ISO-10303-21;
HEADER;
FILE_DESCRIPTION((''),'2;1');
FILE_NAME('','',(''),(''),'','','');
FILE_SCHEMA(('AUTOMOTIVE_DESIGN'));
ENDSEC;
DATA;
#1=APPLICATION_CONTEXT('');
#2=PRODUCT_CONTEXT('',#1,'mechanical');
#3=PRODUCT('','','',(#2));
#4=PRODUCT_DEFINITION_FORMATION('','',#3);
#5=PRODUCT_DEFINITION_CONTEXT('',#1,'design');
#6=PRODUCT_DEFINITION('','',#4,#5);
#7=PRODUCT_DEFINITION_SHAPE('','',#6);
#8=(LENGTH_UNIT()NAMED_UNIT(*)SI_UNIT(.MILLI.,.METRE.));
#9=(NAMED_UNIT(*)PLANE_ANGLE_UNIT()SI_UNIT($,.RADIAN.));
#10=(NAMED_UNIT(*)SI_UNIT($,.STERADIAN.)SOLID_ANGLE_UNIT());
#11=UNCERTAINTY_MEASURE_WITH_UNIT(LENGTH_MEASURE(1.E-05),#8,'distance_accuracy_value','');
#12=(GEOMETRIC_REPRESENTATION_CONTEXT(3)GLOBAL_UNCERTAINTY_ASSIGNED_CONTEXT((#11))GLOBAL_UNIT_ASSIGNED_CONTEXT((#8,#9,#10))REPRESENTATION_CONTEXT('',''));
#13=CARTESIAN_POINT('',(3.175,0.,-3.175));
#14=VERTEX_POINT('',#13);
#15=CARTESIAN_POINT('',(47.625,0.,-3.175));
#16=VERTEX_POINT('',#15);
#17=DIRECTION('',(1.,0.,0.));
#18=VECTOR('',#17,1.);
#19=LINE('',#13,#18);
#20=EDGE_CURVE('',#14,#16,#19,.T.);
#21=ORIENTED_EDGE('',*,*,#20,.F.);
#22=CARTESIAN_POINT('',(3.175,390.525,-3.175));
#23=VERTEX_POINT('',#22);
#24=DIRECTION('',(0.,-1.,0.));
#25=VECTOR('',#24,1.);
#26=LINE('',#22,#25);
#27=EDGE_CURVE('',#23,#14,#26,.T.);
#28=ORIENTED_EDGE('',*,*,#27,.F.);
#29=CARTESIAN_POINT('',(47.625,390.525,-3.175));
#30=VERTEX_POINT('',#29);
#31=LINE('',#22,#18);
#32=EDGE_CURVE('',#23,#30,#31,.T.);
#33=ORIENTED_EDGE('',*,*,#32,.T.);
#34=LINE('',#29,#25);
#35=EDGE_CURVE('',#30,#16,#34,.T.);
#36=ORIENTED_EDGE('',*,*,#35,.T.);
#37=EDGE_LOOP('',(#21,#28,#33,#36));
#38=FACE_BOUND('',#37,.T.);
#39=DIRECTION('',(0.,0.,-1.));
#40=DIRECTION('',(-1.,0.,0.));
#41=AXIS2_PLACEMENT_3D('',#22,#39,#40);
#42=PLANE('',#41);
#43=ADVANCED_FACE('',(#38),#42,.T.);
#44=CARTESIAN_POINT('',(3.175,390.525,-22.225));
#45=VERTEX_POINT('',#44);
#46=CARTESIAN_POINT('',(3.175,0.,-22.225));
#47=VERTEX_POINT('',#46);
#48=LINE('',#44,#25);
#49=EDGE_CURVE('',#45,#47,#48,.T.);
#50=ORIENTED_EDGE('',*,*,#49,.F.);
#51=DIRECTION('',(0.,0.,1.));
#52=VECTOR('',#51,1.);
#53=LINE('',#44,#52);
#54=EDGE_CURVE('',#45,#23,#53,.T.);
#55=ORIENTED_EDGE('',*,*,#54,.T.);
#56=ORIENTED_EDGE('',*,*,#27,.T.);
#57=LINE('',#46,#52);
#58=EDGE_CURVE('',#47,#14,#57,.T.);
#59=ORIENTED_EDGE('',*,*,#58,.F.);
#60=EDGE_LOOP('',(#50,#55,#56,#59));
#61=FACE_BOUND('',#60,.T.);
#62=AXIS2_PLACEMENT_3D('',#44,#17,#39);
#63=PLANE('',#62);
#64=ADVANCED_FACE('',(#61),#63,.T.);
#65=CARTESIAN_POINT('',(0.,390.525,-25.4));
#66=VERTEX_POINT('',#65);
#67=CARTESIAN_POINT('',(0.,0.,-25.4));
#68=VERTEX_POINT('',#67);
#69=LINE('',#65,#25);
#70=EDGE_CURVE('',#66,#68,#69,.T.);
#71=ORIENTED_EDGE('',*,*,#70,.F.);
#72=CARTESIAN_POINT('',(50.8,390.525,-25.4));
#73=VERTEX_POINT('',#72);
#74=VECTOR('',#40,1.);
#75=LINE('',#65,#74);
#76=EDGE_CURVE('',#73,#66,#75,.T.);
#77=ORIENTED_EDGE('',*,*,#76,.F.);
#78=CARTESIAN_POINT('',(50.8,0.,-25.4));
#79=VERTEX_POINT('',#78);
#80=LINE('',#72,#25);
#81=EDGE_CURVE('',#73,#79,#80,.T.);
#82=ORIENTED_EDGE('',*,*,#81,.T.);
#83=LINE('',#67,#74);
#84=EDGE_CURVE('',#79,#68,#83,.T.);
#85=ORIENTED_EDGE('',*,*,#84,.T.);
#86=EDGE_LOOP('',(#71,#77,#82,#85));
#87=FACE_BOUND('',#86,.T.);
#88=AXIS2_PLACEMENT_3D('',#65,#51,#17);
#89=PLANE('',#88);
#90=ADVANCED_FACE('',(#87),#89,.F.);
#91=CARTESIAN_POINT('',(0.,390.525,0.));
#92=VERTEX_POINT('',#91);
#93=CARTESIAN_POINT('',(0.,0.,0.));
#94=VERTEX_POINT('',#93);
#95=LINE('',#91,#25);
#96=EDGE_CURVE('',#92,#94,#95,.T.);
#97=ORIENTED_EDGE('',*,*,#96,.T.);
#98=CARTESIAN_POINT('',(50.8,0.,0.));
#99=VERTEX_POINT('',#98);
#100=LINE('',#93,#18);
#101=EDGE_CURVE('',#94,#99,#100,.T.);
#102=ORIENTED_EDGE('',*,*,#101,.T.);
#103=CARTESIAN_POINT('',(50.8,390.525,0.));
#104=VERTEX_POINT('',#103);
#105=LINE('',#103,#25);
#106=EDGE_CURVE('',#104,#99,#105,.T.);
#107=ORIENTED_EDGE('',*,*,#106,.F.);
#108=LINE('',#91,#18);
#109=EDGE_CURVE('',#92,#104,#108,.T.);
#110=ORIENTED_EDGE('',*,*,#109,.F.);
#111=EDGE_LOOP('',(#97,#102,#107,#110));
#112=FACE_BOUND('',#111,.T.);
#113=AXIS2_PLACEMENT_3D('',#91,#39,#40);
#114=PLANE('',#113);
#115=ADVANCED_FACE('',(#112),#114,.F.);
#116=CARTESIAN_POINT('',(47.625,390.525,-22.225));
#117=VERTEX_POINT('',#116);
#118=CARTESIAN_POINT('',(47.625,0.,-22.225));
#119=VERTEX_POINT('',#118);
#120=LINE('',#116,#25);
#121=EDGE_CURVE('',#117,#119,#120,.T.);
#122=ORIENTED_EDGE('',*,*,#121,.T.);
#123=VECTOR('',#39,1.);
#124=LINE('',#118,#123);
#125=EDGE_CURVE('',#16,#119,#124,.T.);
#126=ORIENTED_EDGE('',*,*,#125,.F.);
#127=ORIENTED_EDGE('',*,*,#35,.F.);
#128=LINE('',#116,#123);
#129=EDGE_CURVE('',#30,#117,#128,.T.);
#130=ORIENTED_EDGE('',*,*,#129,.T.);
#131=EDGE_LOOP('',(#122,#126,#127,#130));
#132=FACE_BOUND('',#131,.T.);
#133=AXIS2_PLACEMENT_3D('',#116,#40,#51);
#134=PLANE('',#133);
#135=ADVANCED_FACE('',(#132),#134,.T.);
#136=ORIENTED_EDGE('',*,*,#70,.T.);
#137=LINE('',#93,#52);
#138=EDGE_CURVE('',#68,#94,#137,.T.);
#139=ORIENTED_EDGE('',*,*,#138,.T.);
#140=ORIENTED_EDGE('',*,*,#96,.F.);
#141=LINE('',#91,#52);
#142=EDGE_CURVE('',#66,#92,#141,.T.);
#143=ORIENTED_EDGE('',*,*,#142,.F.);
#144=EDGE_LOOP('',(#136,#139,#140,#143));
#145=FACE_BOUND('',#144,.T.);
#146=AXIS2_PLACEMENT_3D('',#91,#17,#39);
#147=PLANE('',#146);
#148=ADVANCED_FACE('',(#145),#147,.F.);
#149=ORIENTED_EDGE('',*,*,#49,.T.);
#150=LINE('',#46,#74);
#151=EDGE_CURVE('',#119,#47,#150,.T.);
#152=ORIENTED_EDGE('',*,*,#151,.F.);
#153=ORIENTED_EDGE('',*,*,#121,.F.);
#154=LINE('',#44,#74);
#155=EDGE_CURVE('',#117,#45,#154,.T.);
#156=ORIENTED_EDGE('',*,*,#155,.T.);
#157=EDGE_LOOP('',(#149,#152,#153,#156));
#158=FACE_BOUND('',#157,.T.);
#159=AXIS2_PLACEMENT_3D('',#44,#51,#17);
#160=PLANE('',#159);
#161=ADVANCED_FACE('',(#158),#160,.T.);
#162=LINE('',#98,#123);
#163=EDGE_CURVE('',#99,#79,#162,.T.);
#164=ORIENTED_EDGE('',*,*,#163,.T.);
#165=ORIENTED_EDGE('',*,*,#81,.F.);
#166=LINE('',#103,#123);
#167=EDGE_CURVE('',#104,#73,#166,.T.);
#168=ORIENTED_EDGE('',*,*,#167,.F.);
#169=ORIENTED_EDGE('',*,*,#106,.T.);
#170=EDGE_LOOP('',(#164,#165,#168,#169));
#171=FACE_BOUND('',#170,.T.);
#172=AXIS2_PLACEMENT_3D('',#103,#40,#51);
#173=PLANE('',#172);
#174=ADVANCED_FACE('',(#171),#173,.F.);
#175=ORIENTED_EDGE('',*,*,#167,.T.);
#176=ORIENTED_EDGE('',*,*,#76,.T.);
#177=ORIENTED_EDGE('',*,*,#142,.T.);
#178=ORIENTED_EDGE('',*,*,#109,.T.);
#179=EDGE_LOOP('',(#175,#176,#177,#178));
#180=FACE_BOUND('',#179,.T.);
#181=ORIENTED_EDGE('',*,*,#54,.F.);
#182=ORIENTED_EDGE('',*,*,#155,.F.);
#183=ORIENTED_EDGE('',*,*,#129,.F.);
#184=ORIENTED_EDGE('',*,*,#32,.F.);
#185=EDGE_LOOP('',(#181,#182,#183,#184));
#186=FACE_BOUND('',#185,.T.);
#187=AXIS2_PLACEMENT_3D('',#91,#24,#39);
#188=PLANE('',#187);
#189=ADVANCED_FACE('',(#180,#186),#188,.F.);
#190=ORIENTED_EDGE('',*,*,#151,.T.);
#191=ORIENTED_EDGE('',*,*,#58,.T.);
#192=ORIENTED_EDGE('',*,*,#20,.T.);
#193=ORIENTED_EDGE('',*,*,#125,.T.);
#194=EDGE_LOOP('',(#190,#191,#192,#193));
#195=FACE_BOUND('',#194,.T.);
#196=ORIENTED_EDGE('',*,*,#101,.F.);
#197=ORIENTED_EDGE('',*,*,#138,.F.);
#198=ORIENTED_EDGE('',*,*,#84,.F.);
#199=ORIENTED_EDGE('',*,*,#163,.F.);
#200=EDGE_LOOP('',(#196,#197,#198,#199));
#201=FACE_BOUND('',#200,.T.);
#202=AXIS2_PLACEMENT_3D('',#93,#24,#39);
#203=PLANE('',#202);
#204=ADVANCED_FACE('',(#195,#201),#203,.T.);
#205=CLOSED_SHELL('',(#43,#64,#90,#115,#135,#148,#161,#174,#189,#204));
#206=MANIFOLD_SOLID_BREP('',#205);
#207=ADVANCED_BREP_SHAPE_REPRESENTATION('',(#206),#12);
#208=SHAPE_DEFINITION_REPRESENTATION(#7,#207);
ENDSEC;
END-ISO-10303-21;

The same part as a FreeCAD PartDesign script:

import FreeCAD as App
import Part
import Sketcher
Q = App.Units.Quantity


def add_polygon(sketch, points):
    """Adds a closed chain of lines whose ends are joined by coincident constraints."""
    first, n = sketch.GeometryCount, len(points)
    for a, b in zip(points, points[1:] + points[:1]):
        sketch.addGeometry(Part.LineSegment(App.Vector(*a, 0), App.Vector(*b, 0)), False)
    for i in range(n):
        sketch.addConstraint(Sketcher.Constraint("Coincident", first + i, 2, first + (i + 1) % n, 1))

doc = App.newDocument("Part")
body = doc.addObject("PartDesign::Body", "Body")

# Sketch on XZ plane
sketch1 = doc.addObject("Sketcher::SketchObject", "Sketch")
body.addObject(sketch1)
sketch1.AttachmentSupport = (doc.XZ_Plane, [""])
sketch1.MapMode = "FlatFace"
add_polygon(sketch1, [(0, -25.4), (0, 0), (50.8, 0), (50.8, -25.4)])  # lines 0-3
add_polygon(sketch1, [(47.625, -3.175), (3.175, -3.175), (3.175, -22.225), (47.625, -22.225)])  # lines 4-7
sketch1.addConstraint(Sketcher.Constraint("Vertical", 0))
sketch1.addConstraint(Sketcher.Constraint("Horizontal", 1))
sketch1.addConstraint(Sketcher.Constraint("Vertical", 2))
sketch1.addConstraint(Sketcher.Constraint("Horizontal", 3))
sketch1.addConstraint(Sketcher.Constraint("Horizontal", 4))
sketch1.addConstraint(Sketcher.Constraint("Vertical", 5))
sketch1.addConstraint(Sketcher.Constraint("Horizontal", 6))
sketch1.addConstraint(Sketcher.Constraint("Vertical", 7))
sketch1.addConstraint(Sketcher.Constraint("Coincident", 0, 2, -1, 1))
sketch1.addConstraint(Sketcher.Constraint("DistanceX", 1, 1, 1, 2, Q("2 in")))
sketch1.addConstraint(Sketcher.Constraint("DistanceY", 0, 1, 0, 2, Q("1 in")))
sketch1.addConstraint(Sketcher.Constraint("DistanceX", 4, 2, 4, 1, Q("1.75 in")))
sketch1.addConstraint(Sketcher.Constraint("DistanceY", 5, 2, 5, 1, Q("0.75 in")))
sketch1.addConstraint(Sketcher.Constraint("DistanceX", -1, 1, 4, 2, Q("0.125 in")))
sketch1.addConstraint(Sketcher.Constraint("DistanceY", 4, 2, -1, 1, Q("0.125 in")))
pad1 = doc.addObject("PartDesign::Pad", "Pad")
body.addObject(pad1)
pad1.Profile = sketch1
pad1.Length = Q("15.375 in")
pad1.Reversed = True

doc.recompute()
